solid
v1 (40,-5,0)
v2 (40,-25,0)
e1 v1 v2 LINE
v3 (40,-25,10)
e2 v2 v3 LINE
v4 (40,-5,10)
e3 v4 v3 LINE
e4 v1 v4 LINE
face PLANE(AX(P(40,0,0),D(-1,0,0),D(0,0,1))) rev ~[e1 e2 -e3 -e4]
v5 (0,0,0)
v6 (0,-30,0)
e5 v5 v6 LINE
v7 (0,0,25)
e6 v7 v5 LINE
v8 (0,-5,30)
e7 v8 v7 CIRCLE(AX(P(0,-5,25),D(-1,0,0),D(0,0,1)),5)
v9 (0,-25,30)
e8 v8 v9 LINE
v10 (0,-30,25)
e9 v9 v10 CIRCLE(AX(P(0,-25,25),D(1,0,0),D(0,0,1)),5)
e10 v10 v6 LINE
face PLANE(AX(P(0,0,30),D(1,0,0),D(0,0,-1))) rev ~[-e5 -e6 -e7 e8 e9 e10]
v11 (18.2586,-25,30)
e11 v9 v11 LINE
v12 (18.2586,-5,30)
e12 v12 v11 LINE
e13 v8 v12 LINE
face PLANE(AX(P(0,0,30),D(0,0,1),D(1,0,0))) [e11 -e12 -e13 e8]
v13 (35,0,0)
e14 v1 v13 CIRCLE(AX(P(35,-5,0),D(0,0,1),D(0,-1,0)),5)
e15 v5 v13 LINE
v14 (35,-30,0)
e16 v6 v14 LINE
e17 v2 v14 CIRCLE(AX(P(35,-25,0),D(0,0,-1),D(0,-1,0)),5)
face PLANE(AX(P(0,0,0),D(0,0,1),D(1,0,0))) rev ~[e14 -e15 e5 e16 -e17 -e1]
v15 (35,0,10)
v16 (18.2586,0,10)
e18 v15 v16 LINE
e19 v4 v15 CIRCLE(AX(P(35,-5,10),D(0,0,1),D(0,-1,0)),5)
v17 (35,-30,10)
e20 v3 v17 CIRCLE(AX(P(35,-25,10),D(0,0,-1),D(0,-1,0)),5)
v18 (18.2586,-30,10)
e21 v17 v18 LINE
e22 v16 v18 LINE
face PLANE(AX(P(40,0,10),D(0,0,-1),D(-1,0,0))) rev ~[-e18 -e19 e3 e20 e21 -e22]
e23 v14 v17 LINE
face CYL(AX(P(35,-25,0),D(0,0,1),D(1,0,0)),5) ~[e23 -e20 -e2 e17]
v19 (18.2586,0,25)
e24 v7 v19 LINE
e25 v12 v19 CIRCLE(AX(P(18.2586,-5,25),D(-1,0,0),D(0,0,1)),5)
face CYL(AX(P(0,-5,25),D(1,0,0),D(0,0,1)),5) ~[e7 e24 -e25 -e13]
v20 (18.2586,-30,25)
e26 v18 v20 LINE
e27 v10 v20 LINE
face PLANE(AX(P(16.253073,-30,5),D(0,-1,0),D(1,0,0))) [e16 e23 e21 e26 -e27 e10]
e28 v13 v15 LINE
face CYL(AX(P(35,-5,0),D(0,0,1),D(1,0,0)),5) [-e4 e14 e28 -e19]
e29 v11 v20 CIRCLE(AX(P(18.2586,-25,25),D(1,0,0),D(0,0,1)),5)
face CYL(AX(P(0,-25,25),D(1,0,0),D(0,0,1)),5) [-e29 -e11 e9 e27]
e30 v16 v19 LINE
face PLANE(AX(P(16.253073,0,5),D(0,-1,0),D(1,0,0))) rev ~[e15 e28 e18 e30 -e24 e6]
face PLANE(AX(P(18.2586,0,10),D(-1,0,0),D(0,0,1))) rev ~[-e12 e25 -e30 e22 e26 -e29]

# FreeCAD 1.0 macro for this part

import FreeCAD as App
import Part
import Sketcher
from FreeCAD import Vector


def edges_at(feature, points):
    """Names of the edges that pass closest to the given points."""
    edges = feature.Shape.Edges
    near = lambda p: min(range(len(edges)), key=lambda i: edges[i].distToShape(Part.Vertex(*p))[0])
    return sorted({f"Edge{near(p) + 1}" for p in points})

doc = App.newDocument("Part")
body = doc.addObject("PartDesign::Body", "Body")

sketch1 = doc.addObject("Sketcher::SketchObject", "Sketch")
body.addObject(sketch1)
sketch1.AttachmentSupport = (doc.XZ_Plane, [""])
sketch1.MapMode = "FlatFace"
sketch1.addGeometry(Part.LineSegment(Vector(0, 0, 0), Vector(40, 0, 0)), False)
sketch1.addGeometry(Part.LineSegment(Vector(40, 0, 0), Vector(40, 10, 0)), False)
sketch1.addGeometry(Part.LineSegment(Vector(40, 10, 0), Vector(18, 10, 0)), False)
sketch1.addGeometry(Part.LineSegment(Vector(18, 10, 0), Vector(18, 30, 0)), False)
sketch1.addGeometry(Part.LineSegment(Vector(18, 30, 0), Vector(0, 30, 0)), False)
sketch1.addGeometry(Part.LineSegment(Vector(0, 30, 0), Vector(0, 0, 0)), False)
sketch1.addConstraint(Sketcher.Constraint("Coincident", 0, 2, 1, 1))
sketch1.addConstraint(Sketcher.Constraint("Coincident", 1, 2, 2, 1))
sketch1.addConstraint(Sketcher.Constraint("Coincident", 2, 2, 3, 1))
sketch1.addConstraint(Sketcher.Constraint("Coincident", 3, 2, 4, 1))
sketch1.addConstraint(Sketcher.Constraint("Coincident", 4, 2, 5, 1))
sketch1.addConstraint(Sketcher.Constraint("Coincident", 5, 2, 0, 1))
sketch1.addConstraint(Sketcher.Constraint("Horizontal", 0))
sketch1.addConstraint(Sketcher.Constraint("Vertical", 1))
sketch1.addConstraint(Sketcher.Constraint("Horizontal", 2))
sketch1.addConstraint(Sketcher.Constraint("Vertical", 3))
sketch1.addConstraint(Sketcher.Constraint("Horizontal", 4))
sketch1.addConstraint(Sketcher.Constraint("Vertical", 5))
sketch1.addConstraint(Sketcher.Constraint("Coincident", 5, 2, -1, 1))
sketch1.addConstraint(Sketcher.Constraint("DistanceX", 0, 1, 0, 2, 40.0))
sketch1.addConstraint(Sketcher.Constraint("DistanceY", 1, 1, 1, 2, 10.0))
sketch1.addConstraint(Sketcher.Constraint("DistanceY", 3, 1, 3, 2, 20.0))
sketch1.addConstraint(Sketcher.Constraint("DistanceX", 2, 2, 2, 1, 21.7414))
pad1 = doc.addObject("PartDesign::Pad", "Pad")
body.addObject(pad1)
pad1.Profile = sketch1
pad1.Length = 30
doc.recompute()

fillet = doc.addObject("PartDesign::Fillet", "Fillet")
body.addObject(fillet)
fillet.Base = (pad1, edges_at(pad1, [
    (9.129, -30, 30),
    (9.129, 0, 30),
    (40, -30, 5),
    (40, 0, 5),
]))
fillet.Radius = 5

doc.recompute()
